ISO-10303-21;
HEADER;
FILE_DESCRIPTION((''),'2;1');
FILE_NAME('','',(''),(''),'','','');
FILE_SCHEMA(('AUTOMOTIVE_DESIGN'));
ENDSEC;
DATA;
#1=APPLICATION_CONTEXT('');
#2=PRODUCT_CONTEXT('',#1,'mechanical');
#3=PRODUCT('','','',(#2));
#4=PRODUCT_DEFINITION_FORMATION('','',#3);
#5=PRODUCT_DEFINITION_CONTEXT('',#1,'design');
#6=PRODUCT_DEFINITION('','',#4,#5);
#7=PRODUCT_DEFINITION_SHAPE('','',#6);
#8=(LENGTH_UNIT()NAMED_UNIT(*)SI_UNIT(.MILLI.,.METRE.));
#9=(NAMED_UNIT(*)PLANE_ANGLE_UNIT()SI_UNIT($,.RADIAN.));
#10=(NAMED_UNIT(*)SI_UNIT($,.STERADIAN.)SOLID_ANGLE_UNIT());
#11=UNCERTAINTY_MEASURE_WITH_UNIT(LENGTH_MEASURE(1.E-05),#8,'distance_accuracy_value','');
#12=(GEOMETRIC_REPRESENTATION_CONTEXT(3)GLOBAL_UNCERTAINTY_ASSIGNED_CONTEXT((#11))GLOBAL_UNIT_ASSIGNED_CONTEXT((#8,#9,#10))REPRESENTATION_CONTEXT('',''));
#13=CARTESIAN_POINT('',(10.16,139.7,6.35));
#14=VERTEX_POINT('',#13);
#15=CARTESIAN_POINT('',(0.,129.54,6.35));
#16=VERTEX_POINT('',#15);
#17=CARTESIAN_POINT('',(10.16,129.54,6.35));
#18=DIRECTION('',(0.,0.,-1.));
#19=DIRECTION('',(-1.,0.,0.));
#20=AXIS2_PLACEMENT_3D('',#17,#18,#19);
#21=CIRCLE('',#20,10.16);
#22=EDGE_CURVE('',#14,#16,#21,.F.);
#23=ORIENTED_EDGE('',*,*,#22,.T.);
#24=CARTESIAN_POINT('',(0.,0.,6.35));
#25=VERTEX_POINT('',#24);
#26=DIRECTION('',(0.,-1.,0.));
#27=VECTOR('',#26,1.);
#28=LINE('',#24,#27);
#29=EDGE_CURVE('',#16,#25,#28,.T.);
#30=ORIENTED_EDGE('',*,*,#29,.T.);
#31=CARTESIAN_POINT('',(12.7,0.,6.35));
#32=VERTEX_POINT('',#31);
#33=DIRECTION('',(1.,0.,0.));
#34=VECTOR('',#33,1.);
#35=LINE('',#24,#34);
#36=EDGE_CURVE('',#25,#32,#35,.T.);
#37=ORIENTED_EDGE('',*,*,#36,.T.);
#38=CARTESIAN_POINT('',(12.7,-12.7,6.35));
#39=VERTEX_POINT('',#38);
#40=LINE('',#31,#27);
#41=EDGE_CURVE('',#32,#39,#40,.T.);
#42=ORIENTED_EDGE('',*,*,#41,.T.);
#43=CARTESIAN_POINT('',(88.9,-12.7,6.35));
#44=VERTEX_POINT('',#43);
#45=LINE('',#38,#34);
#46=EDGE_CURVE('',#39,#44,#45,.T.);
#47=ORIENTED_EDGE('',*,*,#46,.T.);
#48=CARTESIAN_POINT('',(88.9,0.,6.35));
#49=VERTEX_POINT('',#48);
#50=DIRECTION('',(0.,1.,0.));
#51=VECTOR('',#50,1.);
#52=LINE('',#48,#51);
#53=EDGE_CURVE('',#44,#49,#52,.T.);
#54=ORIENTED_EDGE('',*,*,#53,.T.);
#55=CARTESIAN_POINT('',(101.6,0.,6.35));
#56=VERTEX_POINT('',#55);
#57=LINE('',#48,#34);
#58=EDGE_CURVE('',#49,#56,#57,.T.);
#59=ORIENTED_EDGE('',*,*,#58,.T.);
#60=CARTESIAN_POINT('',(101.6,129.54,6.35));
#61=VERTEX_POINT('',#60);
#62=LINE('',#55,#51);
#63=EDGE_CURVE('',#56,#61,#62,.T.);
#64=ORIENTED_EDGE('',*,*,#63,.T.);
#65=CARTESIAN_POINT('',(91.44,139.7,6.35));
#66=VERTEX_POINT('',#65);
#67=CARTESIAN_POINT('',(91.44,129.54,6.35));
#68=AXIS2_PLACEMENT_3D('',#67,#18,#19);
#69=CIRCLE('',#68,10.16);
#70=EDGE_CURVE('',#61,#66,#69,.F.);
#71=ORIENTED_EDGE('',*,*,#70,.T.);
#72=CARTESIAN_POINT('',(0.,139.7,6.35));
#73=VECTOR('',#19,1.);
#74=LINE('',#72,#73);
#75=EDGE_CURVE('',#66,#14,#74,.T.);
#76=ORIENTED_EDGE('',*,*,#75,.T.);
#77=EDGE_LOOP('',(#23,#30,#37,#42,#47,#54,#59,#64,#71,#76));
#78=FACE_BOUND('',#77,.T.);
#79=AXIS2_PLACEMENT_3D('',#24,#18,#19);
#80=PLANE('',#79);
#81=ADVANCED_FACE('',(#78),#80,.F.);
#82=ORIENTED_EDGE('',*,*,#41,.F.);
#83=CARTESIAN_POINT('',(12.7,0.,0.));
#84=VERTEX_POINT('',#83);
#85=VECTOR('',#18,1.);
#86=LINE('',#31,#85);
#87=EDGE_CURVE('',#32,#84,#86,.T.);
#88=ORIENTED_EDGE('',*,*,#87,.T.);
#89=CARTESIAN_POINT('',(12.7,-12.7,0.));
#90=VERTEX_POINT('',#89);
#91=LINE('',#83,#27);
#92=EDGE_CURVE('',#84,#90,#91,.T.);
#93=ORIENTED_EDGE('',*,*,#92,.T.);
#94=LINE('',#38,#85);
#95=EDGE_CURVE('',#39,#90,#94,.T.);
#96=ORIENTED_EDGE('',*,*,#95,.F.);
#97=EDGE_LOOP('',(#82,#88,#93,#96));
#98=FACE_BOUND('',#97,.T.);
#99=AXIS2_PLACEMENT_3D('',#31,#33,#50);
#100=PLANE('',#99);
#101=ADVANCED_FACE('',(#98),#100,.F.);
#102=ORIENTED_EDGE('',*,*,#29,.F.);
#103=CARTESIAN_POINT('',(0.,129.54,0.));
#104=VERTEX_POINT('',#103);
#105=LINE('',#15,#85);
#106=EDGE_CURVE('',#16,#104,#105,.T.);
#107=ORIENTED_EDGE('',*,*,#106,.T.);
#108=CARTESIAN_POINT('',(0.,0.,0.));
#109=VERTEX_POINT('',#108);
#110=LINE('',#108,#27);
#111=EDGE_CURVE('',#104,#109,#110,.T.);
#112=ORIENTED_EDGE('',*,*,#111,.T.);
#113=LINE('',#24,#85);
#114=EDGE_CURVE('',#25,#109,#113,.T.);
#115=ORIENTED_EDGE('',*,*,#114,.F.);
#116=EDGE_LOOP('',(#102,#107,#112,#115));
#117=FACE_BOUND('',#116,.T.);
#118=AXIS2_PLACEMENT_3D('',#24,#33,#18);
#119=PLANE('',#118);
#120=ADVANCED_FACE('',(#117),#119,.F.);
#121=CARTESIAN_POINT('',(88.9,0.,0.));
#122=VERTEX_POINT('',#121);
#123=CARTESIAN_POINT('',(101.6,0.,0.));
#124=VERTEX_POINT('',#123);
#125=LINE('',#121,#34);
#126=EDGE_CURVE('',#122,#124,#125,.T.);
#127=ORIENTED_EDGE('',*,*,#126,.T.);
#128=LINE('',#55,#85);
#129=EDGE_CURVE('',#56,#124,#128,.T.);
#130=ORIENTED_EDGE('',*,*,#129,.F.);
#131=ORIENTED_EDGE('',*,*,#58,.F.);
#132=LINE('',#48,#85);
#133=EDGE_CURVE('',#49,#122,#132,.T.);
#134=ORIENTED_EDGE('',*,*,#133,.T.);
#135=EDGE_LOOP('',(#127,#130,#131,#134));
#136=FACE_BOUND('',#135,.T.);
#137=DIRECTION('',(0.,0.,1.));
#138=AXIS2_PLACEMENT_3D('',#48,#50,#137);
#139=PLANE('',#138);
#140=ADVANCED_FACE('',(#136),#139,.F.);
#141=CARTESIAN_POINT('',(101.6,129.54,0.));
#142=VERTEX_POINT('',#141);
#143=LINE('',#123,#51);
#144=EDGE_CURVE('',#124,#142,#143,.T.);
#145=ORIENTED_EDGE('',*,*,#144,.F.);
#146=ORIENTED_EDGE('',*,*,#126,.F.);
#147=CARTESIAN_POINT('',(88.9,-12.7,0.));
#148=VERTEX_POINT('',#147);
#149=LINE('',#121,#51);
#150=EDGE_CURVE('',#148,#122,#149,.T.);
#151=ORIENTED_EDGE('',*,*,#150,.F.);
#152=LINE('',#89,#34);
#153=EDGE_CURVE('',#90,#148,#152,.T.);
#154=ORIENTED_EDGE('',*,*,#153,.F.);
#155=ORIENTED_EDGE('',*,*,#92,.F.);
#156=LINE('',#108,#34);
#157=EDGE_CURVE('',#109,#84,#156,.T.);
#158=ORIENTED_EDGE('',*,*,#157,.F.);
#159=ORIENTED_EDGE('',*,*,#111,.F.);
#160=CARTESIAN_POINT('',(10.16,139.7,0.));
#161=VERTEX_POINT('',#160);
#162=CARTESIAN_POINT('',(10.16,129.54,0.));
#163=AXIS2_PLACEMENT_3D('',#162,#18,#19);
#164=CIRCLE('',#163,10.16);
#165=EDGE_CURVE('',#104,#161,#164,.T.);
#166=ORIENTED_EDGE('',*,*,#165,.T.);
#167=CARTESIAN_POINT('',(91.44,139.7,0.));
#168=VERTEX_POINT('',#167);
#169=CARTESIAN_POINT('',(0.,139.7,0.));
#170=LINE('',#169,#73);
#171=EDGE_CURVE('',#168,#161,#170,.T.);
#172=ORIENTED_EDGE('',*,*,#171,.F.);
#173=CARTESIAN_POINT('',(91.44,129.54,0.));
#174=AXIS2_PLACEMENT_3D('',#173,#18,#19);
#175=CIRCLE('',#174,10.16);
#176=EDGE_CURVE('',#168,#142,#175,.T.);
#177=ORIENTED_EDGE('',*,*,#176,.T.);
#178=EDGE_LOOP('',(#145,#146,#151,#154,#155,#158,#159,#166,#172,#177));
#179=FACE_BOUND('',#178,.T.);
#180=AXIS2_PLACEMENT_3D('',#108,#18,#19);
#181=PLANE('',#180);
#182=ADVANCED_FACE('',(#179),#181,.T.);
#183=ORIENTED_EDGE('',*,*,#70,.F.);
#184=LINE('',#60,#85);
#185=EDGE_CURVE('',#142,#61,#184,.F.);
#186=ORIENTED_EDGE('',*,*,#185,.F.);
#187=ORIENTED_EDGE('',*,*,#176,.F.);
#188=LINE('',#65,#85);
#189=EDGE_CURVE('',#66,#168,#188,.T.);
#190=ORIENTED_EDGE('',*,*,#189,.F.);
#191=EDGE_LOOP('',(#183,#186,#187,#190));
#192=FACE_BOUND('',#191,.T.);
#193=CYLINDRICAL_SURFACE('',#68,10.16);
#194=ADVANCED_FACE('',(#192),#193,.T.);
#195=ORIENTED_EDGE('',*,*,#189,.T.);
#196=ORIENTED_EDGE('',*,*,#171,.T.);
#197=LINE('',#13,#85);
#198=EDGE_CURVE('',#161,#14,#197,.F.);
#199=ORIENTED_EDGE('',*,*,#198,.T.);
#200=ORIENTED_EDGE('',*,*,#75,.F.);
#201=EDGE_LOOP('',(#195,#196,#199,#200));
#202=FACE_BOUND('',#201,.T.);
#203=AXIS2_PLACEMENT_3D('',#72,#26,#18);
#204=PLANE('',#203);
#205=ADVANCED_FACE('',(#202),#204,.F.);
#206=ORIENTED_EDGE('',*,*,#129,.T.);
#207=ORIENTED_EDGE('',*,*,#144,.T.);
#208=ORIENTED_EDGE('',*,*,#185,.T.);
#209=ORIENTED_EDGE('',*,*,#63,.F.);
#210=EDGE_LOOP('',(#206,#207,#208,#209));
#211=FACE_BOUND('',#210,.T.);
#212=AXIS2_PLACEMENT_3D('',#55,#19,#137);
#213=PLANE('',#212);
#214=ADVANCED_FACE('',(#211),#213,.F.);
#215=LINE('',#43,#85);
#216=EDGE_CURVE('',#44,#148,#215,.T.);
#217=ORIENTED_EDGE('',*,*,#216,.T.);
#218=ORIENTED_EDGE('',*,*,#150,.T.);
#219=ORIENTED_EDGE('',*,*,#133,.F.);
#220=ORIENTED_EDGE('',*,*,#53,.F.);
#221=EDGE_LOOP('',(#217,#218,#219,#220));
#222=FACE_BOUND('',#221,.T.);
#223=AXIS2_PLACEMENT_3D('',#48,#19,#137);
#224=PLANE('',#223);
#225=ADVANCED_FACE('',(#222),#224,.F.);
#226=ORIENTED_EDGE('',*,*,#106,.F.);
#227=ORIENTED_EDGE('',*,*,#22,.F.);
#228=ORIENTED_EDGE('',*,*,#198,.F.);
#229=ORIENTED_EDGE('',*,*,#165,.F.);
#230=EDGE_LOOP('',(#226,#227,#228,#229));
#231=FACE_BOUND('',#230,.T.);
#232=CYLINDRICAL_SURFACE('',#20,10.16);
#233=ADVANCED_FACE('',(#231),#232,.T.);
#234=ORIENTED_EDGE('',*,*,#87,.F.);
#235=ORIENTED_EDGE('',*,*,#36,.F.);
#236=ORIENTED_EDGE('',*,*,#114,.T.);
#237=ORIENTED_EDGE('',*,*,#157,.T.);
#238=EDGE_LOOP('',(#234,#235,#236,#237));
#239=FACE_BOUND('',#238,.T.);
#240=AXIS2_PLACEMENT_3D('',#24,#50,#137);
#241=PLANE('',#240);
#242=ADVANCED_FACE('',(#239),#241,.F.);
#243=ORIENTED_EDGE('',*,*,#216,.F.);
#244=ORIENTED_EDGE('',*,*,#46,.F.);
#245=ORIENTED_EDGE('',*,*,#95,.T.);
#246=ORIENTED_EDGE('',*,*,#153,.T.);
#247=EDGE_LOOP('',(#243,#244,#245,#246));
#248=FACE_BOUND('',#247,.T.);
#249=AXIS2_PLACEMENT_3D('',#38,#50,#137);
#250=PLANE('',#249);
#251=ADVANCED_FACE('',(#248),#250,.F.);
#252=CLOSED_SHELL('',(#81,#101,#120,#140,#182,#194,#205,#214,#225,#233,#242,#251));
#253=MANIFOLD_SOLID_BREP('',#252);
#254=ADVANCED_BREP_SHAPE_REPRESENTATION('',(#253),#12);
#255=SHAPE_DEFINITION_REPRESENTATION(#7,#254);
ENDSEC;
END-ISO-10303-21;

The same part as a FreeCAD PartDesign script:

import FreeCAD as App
import Part
import Sketcher
Q = App.Units.Quantity


def edges_at(feature, points):
    """Names of the edges that pass closest to the given points."""
    edges = feature.Shape.Edges
    near = lambda p: min(range(len(edges)), key=lambda i: edges[i].distToShape(Part.Vertex(*p))[0])
    return sorted({f"Edge{near(p) + 1}" for p in points})

doc = App.newDocument("Part")
params = doc.addObject("Spreadsheet::Sheet", "Params")
for row, (alias, value) in enumerate([
    ("sketch1_width", "4 in"),
    ("sketch1_width2", "3 in"),
    ("sketch1_height", "5.5 in"),
    ("pad1_length", "0.25 in"),
    ("fillet_radius", "0.4 in"),
], start=1):
    params.set(f"A{row}", alias)
    params.set(f"B{row}", "=" + value)
    params.setAlias(f"B{row}", alias)

body = doc.addObject("PartDesign::Body", "Body")

sketch1 = body.newObject("Sketcher::SketchObject", "Sketch")
sketch1.AttachmentSupport = (doc.getObject("XY_Plane"), [""])
sketch1.MapMode = "FlatFace"
sketch1.addGeometry([
    Part.LineSegment(App.Vector(89, 0, 0), App.Vector(102, 0, 0)),
    Part.LineSegment(App.Vector(102, 0, 0), App.Vector(102, 140, 0)),
    Part.LineSegment(App.Vector(102, 140, 0), App.Vector(0, 140, 0)),
    Part.LineSegment(App.Vector(0, 140, 0), App.Vector(0, 0, 0)),
    Part.LineSegment(App.Vector(0, 0, 0), App.Vector(13, 0, 0)),
    Part.LineSegment(App.Vector(13, 0, 0), App.Vector(13, -13, 0)),
    Part.LineSegment(App.Vector(13, -13, 0), App.Vector(89, -13, 0)),
    Part.LineSegment(App.Vector(89, -13, 0), App.Vector(89, 0, 0)),
], False)
sketch1.addConstraint([
    Sketcher.Constraint("Coincident", 0, 2, 1, 1),
    Sketcher.Constraint("Coincident", 1, 2, 2, 1),
    Sketcher.Constraint("Coincident", 2, 2, 3, 1),
    Sketcher.Constraint("Coincident", 3, 2, 4, 1),
    Sketcher.Constraint("Coincident", 4, 2, 5, 1),
    Sketcher.Constraint("Coincident", 5, 2, 6, 1),
    Sketcher.Constraint("Coincident", 6, 2, 7, 1),
    Sketcher.Constraint("Coincident", 7, 2, 0, 1),
    Sketcher.Constraint("Horizontal", 0),
    Sketcher.Constraint("Vertical", 1),
    Sketcher.Constraint("Horizontal", 2),
    Sketcher.Constraint("Vertical", 3),
    Sketcher.Constraint("Horizontal", 4),
    Sketcher.Constraint("Vertical", 5),
    Sketcher.Constraint("Horizontal", 6),
    Sketcher.Constraint("Vertical", 7),
    Sketcher.Constraint("Coincident", 3, 2, -1, 1),
    Sketcher.Constraint("PointOnObject", 0, 2, -1),
    Sketcher.Constraint("Equal", 0, 4),
    Sketcher.Constraint("Equal", 4, 5),
    Sketcher.Constraint("DistanceX", 2, 2, 2, 1, Q("4 in")),
    Sketcher.Constraint("DistanceX", 6, 1, 6, 2, Q("3 in")),
    Sketcher.Constraint("DistanceY", 1, 1, 1, 2, Q("5.5 in")),
])
sketch1.setExpression("Constraints[20]", "Params.sketch1_width")
sketch1.setExpression("Constraints[21]", "Params.sketch1_width2")
sketch1.setExpression("Constraints[22]", "Params.sketch1_height")
pad1 = body.newObject("PartDesign::Pad", "Pad")
pad1.Profile = sketch1
pad1.setExpression("Length", "Params.pad1_length")
doc.recompute()

fillet = body.newObject("PartDesign::Fillet", "Fillet")
fillet.Base = (pad1, edges_at(pad1, [(0, 139.7, 3.175), (101.6, 139.7, 3.175)]))
fillet.setExpression("Radius", "Params.fillet_radius")

doc.recompute()
